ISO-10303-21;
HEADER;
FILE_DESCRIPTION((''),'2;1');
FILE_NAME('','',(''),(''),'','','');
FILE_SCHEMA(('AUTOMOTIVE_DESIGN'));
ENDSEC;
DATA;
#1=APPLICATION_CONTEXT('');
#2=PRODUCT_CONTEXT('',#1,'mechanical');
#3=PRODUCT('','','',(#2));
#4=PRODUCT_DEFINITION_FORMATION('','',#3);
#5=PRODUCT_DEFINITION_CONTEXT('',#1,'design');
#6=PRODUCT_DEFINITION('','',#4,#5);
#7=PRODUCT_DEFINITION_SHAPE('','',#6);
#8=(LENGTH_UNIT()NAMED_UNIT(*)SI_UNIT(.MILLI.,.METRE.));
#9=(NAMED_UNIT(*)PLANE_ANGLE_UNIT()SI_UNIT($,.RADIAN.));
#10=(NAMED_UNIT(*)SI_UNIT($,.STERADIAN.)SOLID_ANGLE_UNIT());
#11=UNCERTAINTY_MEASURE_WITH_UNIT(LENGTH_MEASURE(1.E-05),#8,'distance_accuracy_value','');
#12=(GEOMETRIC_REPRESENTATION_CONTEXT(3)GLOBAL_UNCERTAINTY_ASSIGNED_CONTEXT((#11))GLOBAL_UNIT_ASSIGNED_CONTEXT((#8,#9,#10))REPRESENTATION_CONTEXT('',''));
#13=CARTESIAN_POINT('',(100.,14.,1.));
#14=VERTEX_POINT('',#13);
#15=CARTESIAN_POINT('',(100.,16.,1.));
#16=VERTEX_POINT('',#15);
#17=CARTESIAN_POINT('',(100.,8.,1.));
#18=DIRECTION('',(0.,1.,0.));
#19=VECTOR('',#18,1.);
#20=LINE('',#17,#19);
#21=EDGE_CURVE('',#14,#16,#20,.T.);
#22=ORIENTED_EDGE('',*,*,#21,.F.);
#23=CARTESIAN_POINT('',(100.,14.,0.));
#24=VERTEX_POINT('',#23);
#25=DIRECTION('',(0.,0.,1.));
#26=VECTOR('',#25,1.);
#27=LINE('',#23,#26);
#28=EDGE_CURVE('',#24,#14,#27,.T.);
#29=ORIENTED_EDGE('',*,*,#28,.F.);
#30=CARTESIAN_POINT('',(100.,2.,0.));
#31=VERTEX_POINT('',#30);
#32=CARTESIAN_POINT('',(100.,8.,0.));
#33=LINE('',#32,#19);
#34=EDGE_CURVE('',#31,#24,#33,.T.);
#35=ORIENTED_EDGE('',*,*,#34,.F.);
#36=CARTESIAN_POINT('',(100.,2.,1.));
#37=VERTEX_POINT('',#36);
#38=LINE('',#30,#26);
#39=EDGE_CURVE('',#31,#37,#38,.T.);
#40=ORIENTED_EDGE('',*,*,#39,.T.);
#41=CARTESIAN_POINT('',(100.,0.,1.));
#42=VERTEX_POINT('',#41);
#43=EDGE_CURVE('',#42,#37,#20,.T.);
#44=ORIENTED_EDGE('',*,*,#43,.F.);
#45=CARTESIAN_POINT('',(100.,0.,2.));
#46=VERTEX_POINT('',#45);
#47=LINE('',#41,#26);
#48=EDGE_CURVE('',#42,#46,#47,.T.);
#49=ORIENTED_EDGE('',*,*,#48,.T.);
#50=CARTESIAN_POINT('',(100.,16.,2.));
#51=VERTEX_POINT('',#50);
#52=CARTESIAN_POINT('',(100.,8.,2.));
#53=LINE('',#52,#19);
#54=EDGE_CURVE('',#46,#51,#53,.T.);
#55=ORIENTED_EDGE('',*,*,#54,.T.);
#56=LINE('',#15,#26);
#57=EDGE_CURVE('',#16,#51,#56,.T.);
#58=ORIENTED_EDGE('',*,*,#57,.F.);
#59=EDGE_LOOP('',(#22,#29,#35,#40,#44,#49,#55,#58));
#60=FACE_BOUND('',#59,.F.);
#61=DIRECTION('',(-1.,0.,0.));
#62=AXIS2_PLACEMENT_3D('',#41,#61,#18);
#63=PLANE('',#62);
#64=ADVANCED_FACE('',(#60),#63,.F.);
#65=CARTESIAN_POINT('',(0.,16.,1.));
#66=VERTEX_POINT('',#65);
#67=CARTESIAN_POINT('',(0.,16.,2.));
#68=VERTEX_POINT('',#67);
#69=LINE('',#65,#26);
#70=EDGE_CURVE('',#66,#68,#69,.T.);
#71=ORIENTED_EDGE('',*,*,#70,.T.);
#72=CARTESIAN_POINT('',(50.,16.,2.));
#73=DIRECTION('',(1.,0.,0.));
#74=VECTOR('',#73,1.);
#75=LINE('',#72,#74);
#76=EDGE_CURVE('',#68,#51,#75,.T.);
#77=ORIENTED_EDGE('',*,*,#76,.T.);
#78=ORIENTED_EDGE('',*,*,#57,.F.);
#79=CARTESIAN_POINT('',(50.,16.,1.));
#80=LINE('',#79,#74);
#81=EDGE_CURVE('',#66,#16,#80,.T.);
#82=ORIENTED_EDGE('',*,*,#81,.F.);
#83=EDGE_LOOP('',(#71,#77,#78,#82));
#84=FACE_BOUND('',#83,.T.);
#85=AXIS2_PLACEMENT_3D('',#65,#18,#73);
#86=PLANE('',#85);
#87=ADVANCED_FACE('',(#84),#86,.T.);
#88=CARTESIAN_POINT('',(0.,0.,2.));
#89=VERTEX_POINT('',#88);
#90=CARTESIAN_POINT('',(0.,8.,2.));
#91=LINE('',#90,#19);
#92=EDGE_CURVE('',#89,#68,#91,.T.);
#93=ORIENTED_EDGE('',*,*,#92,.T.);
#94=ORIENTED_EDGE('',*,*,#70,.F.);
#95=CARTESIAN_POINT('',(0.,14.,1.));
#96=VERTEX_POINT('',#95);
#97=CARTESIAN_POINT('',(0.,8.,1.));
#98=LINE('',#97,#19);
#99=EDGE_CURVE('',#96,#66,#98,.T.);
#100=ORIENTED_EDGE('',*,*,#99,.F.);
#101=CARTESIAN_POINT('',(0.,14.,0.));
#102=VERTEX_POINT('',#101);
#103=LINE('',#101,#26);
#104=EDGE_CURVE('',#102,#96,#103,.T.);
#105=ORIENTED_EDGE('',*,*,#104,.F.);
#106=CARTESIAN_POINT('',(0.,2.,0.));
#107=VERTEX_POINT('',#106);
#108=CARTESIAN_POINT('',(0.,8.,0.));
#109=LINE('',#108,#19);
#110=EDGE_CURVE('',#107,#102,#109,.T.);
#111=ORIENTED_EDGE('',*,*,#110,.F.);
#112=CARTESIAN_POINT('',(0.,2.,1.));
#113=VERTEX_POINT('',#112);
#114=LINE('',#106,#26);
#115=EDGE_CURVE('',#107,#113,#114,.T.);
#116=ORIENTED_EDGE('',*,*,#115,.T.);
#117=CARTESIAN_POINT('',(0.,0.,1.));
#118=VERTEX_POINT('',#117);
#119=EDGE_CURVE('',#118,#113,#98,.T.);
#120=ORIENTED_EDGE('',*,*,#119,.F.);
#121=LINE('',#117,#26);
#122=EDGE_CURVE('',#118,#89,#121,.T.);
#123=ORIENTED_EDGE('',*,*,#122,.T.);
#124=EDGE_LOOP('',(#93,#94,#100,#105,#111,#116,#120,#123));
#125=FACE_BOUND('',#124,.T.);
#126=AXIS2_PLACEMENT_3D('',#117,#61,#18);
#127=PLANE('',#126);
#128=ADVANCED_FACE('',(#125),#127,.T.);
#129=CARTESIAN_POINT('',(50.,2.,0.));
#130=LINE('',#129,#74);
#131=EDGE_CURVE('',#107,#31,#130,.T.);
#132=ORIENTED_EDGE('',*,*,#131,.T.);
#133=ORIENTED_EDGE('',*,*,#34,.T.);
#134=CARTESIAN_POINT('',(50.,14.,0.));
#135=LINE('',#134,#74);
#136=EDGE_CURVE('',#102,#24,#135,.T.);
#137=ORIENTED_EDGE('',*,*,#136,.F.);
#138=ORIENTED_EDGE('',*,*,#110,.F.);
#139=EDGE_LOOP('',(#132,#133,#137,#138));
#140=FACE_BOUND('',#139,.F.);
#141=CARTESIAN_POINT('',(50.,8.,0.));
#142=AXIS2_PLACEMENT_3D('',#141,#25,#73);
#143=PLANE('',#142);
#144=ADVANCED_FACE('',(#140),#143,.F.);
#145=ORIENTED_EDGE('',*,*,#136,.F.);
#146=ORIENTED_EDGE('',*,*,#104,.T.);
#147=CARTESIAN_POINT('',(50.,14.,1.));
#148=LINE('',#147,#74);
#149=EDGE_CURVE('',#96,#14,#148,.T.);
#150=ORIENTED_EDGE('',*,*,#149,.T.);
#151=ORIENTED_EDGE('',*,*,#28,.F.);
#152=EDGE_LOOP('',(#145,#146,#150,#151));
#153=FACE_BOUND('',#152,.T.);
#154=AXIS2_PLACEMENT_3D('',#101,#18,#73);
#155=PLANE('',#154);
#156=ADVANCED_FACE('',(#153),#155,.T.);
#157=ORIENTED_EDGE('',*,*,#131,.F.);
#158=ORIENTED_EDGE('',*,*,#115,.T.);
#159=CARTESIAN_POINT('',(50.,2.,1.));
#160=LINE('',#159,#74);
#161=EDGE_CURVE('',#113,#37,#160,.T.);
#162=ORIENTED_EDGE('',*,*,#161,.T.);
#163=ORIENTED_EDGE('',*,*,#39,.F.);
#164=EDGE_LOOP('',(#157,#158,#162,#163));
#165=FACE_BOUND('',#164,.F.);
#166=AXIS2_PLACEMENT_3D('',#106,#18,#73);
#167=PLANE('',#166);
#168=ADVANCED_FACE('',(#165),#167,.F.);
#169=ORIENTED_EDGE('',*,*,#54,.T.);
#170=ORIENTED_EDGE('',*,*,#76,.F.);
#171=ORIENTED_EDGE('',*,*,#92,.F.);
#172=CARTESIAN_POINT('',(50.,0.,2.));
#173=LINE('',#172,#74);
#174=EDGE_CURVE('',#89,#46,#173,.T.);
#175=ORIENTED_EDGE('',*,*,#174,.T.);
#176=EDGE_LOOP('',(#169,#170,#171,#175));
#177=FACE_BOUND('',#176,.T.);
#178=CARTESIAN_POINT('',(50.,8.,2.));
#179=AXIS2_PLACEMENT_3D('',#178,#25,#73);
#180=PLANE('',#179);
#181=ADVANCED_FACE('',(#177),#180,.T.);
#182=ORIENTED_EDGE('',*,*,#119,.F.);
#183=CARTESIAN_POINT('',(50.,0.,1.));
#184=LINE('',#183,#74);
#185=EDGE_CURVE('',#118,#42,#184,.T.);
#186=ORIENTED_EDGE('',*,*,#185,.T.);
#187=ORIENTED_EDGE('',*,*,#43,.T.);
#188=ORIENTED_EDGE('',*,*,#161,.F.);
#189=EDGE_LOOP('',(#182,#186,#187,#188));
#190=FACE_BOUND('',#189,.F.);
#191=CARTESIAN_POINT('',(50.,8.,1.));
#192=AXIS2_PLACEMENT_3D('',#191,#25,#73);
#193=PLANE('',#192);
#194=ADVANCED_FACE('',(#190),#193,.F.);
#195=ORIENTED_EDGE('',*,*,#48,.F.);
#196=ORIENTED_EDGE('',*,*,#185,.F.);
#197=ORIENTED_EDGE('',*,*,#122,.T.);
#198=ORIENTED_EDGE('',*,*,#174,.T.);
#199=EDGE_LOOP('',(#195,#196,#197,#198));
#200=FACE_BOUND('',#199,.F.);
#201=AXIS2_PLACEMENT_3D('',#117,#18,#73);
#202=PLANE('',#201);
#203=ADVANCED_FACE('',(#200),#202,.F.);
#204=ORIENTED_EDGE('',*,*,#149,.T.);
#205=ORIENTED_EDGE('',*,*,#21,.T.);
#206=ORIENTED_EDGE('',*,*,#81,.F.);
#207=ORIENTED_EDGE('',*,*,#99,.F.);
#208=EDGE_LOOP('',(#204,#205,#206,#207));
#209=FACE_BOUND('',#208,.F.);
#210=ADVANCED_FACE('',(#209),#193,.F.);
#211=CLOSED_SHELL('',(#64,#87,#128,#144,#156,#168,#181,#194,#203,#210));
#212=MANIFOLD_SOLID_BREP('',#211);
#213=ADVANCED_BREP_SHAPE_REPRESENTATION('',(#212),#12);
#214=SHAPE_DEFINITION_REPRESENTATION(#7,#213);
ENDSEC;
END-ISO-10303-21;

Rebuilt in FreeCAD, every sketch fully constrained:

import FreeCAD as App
import Part
import Sketcher
from FreeCAD import Vector
Q = App.Units.Quantity


def add_polygon(sketch, points):
    """Adds a closed chain of lines whose ends are joined by coincident constraints."""
    first, n = sketch.GeometryCount, len(points)
    for a, b in zip(points, points[1:] + points[:1]):
        sketch.addGeometry(Part.LineSegment(App.Vector(*a, 0), App.Vector(*b, 0)), False)
    for i in range(n):
        sketch.addConstraint(Sketcher.Constraint("Coincident", first + i, 2, first + (i + 1) % n, 1))

doc = App.newDocument("Part")
body = doc.addObject("PartDesign::Body", "Body")

# Sketch on XY plane
sketch1 = doc.addObject("Sketcher::SketchObject", "Sketch")
body.addObject(sketch1)
sketch1.AttachmentSupport = (doc.XY_Plane, [""])
sketch1.MapMode = "FlatFace"
sketch1.AttachmentOffset = App.Placement(Vector(0, 0, 1), App.Rotation())
add_polygon(sketch1, [(0, 16), (0, 0), (100, 0), (100, 16)])  # lines 0-3
sketch1.addConstraint(Sketcher.Constraint("Vertical", 0))
sketch1.addConstraint(Sketcher.Constraint("Horizontal", 1))
sketch1.addConstraint(Sketcher.Constraint("Vertical", 2))
sketch1.addConstraint(Sketcher.Constraint("Horizontal", 3))
sketch1.addConstraint(Sketcher.Constraint("Coincident", 0, 2, -1, 1))
sketch1.addConstraint(Sketcher.Constraint("DistanceX", 1, 1, 1, 2, Q("100 mm")))
sketch1.addConstraint(Sketcher.Constraint("DistanceY", 0, 2, 0, 1, Q("16 mm")))
pad1 = doc.addObject("PartDesign::Pad", "Pad")
body.addObject(pad1)
pad1.Profile = sketch1
pad1.Length = 1
body2 = doc.addObject("PartDesign::Body", "Body001")

# Sketch on XY plane
sketch2 = doc.addObject("Sketcher::SketchObject", "Sketch001")
body2.addObject(sketch2)
sketch2.AttachmentSupport = (doc.getObject("XY_Plane001"), [""])
sketch2.MapMode = "FlatFace"
add_polygon(sketch2, [(0, 14), (0, 2), (100, 2), (100, 14)])  # lines 0-3
sketch2.addConstraint(Sketcher.Constraint("Vertical", 0))
sketch2.addConstraint(Sketcher.Constraint("Horizontal", 1))
sketch2.addConstraint(Sketcher.Constraint("Vertical", 2))
sketch2.addConstraint(Sketcher.Constraint("Horizontal", 3))
sketch2.addConstraint(Sketcher.Constraint("PointOnObject", 0, 2, -2))
sketch2.addConstraint(Sketcher.Constraint("DistanceX", 1, 1, 1, 2, Q("100 mm")))
sketch2.addConstraint(Sketcher.Constraint("DistanceY", 0, 2, 0, 1, Q("12 mm")))
sketch2.addConstraint(Sketcher.Constraint("DistanceY", -1, 1, 0, 2, Q("2 mm")))
pad2 = doc.addObject("PartDesign::Pad", "Pad001")
body2.addObject(pad2)
pad2.Profile = sketch2
pad2.Length = 1
doc.recompute()

boolean = doc.addObject("PartDesign::Boolean", "Boolean")
body2.addObject(boolean)
boolean.Type = "Fuse"
boolean.addObjects([body])

doc.recompute()
